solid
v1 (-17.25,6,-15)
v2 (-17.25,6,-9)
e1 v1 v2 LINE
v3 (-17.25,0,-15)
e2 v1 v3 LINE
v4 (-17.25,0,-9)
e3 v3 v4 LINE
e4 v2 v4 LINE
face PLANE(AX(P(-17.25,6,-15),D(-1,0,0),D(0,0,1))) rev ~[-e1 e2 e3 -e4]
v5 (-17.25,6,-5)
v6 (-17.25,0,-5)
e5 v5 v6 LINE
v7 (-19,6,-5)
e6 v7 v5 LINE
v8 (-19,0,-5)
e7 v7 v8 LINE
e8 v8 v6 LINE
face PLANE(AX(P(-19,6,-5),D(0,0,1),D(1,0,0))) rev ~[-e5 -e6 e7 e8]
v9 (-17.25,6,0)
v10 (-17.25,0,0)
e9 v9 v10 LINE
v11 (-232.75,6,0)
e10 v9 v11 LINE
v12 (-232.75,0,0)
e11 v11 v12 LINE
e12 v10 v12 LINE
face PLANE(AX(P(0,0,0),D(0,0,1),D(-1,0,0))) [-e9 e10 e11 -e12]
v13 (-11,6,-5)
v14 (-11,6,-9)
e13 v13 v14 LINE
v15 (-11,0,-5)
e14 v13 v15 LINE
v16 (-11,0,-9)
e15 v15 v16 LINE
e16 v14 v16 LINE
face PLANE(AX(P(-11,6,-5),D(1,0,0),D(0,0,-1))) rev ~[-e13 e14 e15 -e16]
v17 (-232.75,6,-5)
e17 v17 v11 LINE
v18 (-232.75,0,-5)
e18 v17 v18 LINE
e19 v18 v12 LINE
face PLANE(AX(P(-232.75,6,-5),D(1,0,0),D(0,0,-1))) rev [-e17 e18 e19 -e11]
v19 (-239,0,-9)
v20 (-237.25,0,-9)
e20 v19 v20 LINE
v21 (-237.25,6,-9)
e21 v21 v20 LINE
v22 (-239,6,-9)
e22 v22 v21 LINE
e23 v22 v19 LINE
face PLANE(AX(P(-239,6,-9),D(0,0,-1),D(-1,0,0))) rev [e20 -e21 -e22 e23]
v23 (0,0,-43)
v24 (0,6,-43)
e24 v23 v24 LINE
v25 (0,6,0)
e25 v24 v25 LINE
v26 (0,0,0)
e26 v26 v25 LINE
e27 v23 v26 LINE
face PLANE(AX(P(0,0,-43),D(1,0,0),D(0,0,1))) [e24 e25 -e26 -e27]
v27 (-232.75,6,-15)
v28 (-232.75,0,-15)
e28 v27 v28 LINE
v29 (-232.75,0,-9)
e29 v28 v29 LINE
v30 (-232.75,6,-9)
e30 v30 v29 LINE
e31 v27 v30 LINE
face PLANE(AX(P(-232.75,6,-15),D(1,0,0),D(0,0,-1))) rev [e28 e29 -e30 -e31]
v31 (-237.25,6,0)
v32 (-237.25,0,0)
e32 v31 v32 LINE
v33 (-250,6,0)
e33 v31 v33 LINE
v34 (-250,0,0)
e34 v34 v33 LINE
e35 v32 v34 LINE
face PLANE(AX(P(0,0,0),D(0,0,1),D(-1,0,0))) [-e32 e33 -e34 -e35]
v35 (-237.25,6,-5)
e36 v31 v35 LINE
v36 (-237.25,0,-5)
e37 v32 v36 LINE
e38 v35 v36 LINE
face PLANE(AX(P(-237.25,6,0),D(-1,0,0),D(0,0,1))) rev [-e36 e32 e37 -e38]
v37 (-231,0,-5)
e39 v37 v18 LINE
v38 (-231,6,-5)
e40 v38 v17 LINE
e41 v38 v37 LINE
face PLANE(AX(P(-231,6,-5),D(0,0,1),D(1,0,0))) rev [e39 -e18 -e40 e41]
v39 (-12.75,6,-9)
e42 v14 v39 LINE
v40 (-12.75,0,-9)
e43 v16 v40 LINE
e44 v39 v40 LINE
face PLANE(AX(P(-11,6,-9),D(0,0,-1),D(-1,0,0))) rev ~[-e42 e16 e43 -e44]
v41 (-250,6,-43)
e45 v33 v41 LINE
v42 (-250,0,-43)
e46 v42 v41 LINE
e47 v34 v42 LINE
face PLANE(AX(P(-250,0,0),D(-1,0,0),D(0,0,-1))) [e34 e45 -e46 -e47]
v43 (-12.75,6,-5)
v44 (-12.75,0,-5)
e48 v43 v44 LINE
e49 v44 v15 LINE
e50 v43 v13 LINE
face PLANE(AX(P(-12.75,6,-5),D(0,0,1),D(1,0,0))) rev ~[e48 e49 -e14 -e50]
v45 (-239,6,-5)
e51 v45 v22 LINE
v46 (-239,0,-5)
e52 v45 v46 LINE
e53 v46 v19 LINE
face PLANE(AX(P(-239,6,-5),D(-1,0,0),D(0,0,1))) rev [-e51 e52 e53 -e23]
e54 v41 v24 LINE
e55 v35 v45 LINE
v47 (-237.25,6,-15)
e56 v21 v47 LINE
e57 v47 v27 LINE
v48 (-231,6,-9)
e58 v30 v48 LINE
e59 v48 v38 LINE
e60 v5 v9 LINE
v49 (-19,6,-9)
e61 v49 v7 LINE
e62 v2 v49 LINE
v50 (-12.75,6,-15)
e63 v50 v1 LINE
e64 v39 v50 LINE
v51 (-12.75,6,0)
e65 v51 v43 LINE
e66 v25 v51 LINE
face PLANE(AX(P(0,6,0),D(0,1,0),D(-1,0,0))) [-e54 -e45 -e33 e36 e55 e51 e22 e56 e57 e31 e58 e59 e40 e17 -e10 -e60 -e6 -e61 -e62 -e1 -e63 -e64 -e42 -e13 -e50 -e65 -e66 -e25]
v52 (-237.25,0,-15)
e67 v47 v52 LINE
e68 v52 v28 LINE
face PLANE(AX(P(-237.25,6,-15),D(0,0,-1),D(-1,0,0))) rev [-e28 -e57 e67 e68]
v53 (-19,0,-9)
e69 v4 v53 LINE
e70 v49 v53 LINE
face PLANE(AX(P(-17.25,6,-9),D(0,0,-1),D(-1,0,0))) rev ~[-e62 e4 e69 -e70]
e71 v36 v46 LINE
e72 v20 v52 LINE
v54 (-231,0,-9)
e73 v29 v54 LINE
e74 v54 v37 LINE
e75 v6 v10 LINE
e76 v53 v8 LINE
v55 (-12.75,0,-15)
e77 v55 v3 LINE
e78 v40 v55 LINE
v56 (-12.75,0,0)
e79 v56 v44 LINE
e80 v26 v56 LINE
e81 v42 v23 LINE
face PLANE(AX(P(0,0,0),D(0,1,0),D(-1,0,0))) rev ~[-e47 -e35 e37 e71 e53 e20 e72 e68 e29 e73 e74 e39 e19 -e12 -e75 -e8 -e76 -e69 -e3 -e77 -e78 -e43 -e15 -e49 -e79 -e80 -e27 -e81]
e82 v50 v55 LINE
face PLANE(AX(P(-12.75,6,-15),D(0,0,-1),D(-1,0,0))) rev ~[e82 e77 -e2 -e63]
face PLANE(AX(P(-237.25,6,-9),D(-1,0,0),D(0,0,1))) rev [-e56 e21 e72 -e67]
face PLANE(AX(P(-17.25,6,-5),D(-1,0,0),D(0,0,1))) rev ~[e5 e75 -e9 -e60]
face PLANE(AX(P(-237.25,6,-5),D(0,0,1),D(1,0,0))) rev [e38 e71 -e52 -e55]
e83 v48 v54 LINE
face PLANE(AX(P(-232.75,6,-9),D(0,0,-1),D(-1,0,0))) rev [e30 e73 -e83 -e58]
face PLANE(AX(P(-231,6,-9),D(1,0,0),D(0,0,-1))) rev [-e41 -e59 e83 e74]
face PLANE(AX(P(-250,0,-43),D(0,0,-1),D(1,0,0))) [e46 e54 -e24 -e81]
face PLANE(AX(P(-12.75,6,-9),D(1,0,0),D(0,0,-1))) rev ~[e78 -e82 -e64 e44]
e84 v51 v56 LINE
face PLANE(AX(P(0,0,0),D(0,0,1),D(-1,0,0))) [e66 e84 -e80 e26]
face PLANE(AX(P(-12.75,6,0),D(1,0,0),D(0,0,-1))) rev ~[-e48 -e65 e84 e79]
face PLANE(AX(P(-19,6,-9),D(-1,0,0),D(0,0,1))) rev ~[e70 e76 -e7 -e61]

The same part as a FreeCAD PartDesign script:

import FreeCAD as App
import Part
import Sketcher
from FreeCAD import Vector
Q = App.Units.Quantity


def add_polygon(sketch, points):
    """Adds a closed chain of lines whose ends are joined by coincident constraints."""
    first, n = sketch.GeometryCount, len(points)
    for a, b in zip(points, points[1:] + points[:1]):
        sketch.addGeometry(Part.LineSegment(App.Vector(*a, 0), App.Vector(*b, 0)), False)
    for i in range(n):
        sketch.addConstraint(Sketcher.Constraint("Coincident", first + i, 2, first + (i + 1) % n, 1))

doc = App.newDocument("Part")
body = doc.addObject("PartDesign::Body", "Body")

# Sketch on XZ plane
sketch1 = body.newObject("Sketcher::SketchObject", "Sketch")
sketch1.AttachmentSupport = (doc.getObject("XZ_Plane"), [""])
sketch1.MapMode = "FlatFace"
add_polygon(sketch1, [(-250, 0), (0, 0), (0, -43), (-250, -43)])  # lines 0-3
sketch1.addConstraint(Sketcher.Constraint("Horizontal", 0))
sketch1.addConstraint(Sketcher.Constraint("Vertical", 1))
sketch1.addConstraint(Sketcher.Constraint("Horizontal", 2))
sketch1.addConstraint(Sketcher.Constraint("Vertical", 3))
sketch1.addConstraint(Sketcher.Constraint("Coincident", 0, 2, -1, 1))
sketch1.addConstraint(Sketcher.Constraint("DistanceX", 0, 1, 0, 2, Q("250 mm")))
sketch1.addConstraint(Sketcher.Constraint("DistanceY", 1, 2, 1, 1, Q("43 mm")))
pad1 = body.newObject("PartDesign::Pad", "Pad")
pad1.Profile = sketch1
pad1.Length = 6
pad1.Reversed = True

# Sketch on XZ plane
sketch2 = body.newObject("Sketcher::SketchObject", "Sketch001")
sketch2.AttachmentSupport = (doc.getObject("XZ_Plane"), [""])
sketch2.MapMode = "FlatFace"
sketch2.AttachmentOffset = App.Placement(Vector(0, 0, -6), App.Rotation())
add_polygon(sketch2, [(-17.2, -5), (-17.2, 0), (-12.8, 0), (-12.8, -5), (-11, -5), (-11, -9), (-12.8, -9), (-12.8, -15), (-17.2, -15), (-17.2, -9), (-19, -9), (-19, -5)])  # lines 0-11
sketch2.addConstraint(Sketcher.Constraint("Vertical", 0))
sketch2.addConstraint(Sketcher.Constraint("Horizontal", 1))
sketch2.addConstraint(Sketcher.Constraint("Vertical", 2))
sketch2.addConstraint(Sketcher.Constraint("Horizontal", 3))
sketch2.addConstraint(Sketcher.Constraint("Vertical", 4))
sketch2.addConstraint(Sketcher.Constraint("Horizontal", 5))
sketch2.addConstraint(Sketcher.Constraint("Vertical", 6))
sketch2.addConstraint(Sketcher.Constraint("Horizontal", 7))
sketch2.addConstraint(Sketcher.Constraint("Vertical", 8))
sketch2.addConstraint(Sketcher.Constraint("Horizontal", 9))
sketch2.addConstraint(Sketcher.Constraint("Vertical", 10))
sketch2.addConstraint(Sketcher.Constraint("Horizontal", 11))
sketch2.addConstraint(Sketcher.Constraint("PointOnObject", 0, 2, -1))
sketch2.addConstraint(Sketcher.Constraint("Horizontal", 5, 2, 8, 2))
sketch2.addConstraint(Sketcher.Constraint("Horizontal", 3, 2, 10, 2))
sketch2.addConstraint(Sketcher.Constraint("Vertical", 2, 2, 5, 2))
sketch2.addConstraint(Sketcher.Constraint("Vertical", 0, 2, 7, 2))
sketch2.addConstraint(Sketcher.Constraint("Equal", 5, 9))
sketch2.addConstraint(Sketcher.Constraint("DistanceY", 0, 1, 0, 2, Q("5 mm")))
sketch2.addConstraint(Sketcher.Constraint("DistanceY", 4, 2, 4, 1, Q("4 mm")))
sketch2.addConstraint(Sketcher.Constraint("DistanceX", 1, 1, 1, 2, Q("4.5 mm")))
sketch2.addConstraint(Sketcher.Constraint("DistanceY", 6, 2, -1, 1, Q("15 mm")))
sketch2.addConstraint(Sketcher.Constraint("DistanceX", 9, 2, 4, 2, Q("8 mm")))
sketch2.addConstraint(Sketcher.Constraint("DistanceX", 1, 2, -1, 1, Q("12.75 mm")))
pocket1 = body.newObject("PartDesign::Pocket", "Pocket")
pocket1.Profile = sketch2
pocket1.Type = "ThroughAll"
pocket1.Reversed = True
doc.recompute()

datumplane = body.newObject("PartDesign::Plane", "DatumPlane")
datumplane.AttachmentSupport = (doc.getObject("YZ_Plane"), [""])
datumplane.MapMode = "FlatFace"
datumplane.AttachmentOffset = App.Placement(Vector(0, 0, -125), App.Rotation())
mirrored = body.newObject("PartDesign::Mirrored", "Mirrored")
mirrored.Originals = [pocket1]
mirrored.MirrorPlane = (datumplane, [""])
body.Tip = mirrored

doc.recompute()
